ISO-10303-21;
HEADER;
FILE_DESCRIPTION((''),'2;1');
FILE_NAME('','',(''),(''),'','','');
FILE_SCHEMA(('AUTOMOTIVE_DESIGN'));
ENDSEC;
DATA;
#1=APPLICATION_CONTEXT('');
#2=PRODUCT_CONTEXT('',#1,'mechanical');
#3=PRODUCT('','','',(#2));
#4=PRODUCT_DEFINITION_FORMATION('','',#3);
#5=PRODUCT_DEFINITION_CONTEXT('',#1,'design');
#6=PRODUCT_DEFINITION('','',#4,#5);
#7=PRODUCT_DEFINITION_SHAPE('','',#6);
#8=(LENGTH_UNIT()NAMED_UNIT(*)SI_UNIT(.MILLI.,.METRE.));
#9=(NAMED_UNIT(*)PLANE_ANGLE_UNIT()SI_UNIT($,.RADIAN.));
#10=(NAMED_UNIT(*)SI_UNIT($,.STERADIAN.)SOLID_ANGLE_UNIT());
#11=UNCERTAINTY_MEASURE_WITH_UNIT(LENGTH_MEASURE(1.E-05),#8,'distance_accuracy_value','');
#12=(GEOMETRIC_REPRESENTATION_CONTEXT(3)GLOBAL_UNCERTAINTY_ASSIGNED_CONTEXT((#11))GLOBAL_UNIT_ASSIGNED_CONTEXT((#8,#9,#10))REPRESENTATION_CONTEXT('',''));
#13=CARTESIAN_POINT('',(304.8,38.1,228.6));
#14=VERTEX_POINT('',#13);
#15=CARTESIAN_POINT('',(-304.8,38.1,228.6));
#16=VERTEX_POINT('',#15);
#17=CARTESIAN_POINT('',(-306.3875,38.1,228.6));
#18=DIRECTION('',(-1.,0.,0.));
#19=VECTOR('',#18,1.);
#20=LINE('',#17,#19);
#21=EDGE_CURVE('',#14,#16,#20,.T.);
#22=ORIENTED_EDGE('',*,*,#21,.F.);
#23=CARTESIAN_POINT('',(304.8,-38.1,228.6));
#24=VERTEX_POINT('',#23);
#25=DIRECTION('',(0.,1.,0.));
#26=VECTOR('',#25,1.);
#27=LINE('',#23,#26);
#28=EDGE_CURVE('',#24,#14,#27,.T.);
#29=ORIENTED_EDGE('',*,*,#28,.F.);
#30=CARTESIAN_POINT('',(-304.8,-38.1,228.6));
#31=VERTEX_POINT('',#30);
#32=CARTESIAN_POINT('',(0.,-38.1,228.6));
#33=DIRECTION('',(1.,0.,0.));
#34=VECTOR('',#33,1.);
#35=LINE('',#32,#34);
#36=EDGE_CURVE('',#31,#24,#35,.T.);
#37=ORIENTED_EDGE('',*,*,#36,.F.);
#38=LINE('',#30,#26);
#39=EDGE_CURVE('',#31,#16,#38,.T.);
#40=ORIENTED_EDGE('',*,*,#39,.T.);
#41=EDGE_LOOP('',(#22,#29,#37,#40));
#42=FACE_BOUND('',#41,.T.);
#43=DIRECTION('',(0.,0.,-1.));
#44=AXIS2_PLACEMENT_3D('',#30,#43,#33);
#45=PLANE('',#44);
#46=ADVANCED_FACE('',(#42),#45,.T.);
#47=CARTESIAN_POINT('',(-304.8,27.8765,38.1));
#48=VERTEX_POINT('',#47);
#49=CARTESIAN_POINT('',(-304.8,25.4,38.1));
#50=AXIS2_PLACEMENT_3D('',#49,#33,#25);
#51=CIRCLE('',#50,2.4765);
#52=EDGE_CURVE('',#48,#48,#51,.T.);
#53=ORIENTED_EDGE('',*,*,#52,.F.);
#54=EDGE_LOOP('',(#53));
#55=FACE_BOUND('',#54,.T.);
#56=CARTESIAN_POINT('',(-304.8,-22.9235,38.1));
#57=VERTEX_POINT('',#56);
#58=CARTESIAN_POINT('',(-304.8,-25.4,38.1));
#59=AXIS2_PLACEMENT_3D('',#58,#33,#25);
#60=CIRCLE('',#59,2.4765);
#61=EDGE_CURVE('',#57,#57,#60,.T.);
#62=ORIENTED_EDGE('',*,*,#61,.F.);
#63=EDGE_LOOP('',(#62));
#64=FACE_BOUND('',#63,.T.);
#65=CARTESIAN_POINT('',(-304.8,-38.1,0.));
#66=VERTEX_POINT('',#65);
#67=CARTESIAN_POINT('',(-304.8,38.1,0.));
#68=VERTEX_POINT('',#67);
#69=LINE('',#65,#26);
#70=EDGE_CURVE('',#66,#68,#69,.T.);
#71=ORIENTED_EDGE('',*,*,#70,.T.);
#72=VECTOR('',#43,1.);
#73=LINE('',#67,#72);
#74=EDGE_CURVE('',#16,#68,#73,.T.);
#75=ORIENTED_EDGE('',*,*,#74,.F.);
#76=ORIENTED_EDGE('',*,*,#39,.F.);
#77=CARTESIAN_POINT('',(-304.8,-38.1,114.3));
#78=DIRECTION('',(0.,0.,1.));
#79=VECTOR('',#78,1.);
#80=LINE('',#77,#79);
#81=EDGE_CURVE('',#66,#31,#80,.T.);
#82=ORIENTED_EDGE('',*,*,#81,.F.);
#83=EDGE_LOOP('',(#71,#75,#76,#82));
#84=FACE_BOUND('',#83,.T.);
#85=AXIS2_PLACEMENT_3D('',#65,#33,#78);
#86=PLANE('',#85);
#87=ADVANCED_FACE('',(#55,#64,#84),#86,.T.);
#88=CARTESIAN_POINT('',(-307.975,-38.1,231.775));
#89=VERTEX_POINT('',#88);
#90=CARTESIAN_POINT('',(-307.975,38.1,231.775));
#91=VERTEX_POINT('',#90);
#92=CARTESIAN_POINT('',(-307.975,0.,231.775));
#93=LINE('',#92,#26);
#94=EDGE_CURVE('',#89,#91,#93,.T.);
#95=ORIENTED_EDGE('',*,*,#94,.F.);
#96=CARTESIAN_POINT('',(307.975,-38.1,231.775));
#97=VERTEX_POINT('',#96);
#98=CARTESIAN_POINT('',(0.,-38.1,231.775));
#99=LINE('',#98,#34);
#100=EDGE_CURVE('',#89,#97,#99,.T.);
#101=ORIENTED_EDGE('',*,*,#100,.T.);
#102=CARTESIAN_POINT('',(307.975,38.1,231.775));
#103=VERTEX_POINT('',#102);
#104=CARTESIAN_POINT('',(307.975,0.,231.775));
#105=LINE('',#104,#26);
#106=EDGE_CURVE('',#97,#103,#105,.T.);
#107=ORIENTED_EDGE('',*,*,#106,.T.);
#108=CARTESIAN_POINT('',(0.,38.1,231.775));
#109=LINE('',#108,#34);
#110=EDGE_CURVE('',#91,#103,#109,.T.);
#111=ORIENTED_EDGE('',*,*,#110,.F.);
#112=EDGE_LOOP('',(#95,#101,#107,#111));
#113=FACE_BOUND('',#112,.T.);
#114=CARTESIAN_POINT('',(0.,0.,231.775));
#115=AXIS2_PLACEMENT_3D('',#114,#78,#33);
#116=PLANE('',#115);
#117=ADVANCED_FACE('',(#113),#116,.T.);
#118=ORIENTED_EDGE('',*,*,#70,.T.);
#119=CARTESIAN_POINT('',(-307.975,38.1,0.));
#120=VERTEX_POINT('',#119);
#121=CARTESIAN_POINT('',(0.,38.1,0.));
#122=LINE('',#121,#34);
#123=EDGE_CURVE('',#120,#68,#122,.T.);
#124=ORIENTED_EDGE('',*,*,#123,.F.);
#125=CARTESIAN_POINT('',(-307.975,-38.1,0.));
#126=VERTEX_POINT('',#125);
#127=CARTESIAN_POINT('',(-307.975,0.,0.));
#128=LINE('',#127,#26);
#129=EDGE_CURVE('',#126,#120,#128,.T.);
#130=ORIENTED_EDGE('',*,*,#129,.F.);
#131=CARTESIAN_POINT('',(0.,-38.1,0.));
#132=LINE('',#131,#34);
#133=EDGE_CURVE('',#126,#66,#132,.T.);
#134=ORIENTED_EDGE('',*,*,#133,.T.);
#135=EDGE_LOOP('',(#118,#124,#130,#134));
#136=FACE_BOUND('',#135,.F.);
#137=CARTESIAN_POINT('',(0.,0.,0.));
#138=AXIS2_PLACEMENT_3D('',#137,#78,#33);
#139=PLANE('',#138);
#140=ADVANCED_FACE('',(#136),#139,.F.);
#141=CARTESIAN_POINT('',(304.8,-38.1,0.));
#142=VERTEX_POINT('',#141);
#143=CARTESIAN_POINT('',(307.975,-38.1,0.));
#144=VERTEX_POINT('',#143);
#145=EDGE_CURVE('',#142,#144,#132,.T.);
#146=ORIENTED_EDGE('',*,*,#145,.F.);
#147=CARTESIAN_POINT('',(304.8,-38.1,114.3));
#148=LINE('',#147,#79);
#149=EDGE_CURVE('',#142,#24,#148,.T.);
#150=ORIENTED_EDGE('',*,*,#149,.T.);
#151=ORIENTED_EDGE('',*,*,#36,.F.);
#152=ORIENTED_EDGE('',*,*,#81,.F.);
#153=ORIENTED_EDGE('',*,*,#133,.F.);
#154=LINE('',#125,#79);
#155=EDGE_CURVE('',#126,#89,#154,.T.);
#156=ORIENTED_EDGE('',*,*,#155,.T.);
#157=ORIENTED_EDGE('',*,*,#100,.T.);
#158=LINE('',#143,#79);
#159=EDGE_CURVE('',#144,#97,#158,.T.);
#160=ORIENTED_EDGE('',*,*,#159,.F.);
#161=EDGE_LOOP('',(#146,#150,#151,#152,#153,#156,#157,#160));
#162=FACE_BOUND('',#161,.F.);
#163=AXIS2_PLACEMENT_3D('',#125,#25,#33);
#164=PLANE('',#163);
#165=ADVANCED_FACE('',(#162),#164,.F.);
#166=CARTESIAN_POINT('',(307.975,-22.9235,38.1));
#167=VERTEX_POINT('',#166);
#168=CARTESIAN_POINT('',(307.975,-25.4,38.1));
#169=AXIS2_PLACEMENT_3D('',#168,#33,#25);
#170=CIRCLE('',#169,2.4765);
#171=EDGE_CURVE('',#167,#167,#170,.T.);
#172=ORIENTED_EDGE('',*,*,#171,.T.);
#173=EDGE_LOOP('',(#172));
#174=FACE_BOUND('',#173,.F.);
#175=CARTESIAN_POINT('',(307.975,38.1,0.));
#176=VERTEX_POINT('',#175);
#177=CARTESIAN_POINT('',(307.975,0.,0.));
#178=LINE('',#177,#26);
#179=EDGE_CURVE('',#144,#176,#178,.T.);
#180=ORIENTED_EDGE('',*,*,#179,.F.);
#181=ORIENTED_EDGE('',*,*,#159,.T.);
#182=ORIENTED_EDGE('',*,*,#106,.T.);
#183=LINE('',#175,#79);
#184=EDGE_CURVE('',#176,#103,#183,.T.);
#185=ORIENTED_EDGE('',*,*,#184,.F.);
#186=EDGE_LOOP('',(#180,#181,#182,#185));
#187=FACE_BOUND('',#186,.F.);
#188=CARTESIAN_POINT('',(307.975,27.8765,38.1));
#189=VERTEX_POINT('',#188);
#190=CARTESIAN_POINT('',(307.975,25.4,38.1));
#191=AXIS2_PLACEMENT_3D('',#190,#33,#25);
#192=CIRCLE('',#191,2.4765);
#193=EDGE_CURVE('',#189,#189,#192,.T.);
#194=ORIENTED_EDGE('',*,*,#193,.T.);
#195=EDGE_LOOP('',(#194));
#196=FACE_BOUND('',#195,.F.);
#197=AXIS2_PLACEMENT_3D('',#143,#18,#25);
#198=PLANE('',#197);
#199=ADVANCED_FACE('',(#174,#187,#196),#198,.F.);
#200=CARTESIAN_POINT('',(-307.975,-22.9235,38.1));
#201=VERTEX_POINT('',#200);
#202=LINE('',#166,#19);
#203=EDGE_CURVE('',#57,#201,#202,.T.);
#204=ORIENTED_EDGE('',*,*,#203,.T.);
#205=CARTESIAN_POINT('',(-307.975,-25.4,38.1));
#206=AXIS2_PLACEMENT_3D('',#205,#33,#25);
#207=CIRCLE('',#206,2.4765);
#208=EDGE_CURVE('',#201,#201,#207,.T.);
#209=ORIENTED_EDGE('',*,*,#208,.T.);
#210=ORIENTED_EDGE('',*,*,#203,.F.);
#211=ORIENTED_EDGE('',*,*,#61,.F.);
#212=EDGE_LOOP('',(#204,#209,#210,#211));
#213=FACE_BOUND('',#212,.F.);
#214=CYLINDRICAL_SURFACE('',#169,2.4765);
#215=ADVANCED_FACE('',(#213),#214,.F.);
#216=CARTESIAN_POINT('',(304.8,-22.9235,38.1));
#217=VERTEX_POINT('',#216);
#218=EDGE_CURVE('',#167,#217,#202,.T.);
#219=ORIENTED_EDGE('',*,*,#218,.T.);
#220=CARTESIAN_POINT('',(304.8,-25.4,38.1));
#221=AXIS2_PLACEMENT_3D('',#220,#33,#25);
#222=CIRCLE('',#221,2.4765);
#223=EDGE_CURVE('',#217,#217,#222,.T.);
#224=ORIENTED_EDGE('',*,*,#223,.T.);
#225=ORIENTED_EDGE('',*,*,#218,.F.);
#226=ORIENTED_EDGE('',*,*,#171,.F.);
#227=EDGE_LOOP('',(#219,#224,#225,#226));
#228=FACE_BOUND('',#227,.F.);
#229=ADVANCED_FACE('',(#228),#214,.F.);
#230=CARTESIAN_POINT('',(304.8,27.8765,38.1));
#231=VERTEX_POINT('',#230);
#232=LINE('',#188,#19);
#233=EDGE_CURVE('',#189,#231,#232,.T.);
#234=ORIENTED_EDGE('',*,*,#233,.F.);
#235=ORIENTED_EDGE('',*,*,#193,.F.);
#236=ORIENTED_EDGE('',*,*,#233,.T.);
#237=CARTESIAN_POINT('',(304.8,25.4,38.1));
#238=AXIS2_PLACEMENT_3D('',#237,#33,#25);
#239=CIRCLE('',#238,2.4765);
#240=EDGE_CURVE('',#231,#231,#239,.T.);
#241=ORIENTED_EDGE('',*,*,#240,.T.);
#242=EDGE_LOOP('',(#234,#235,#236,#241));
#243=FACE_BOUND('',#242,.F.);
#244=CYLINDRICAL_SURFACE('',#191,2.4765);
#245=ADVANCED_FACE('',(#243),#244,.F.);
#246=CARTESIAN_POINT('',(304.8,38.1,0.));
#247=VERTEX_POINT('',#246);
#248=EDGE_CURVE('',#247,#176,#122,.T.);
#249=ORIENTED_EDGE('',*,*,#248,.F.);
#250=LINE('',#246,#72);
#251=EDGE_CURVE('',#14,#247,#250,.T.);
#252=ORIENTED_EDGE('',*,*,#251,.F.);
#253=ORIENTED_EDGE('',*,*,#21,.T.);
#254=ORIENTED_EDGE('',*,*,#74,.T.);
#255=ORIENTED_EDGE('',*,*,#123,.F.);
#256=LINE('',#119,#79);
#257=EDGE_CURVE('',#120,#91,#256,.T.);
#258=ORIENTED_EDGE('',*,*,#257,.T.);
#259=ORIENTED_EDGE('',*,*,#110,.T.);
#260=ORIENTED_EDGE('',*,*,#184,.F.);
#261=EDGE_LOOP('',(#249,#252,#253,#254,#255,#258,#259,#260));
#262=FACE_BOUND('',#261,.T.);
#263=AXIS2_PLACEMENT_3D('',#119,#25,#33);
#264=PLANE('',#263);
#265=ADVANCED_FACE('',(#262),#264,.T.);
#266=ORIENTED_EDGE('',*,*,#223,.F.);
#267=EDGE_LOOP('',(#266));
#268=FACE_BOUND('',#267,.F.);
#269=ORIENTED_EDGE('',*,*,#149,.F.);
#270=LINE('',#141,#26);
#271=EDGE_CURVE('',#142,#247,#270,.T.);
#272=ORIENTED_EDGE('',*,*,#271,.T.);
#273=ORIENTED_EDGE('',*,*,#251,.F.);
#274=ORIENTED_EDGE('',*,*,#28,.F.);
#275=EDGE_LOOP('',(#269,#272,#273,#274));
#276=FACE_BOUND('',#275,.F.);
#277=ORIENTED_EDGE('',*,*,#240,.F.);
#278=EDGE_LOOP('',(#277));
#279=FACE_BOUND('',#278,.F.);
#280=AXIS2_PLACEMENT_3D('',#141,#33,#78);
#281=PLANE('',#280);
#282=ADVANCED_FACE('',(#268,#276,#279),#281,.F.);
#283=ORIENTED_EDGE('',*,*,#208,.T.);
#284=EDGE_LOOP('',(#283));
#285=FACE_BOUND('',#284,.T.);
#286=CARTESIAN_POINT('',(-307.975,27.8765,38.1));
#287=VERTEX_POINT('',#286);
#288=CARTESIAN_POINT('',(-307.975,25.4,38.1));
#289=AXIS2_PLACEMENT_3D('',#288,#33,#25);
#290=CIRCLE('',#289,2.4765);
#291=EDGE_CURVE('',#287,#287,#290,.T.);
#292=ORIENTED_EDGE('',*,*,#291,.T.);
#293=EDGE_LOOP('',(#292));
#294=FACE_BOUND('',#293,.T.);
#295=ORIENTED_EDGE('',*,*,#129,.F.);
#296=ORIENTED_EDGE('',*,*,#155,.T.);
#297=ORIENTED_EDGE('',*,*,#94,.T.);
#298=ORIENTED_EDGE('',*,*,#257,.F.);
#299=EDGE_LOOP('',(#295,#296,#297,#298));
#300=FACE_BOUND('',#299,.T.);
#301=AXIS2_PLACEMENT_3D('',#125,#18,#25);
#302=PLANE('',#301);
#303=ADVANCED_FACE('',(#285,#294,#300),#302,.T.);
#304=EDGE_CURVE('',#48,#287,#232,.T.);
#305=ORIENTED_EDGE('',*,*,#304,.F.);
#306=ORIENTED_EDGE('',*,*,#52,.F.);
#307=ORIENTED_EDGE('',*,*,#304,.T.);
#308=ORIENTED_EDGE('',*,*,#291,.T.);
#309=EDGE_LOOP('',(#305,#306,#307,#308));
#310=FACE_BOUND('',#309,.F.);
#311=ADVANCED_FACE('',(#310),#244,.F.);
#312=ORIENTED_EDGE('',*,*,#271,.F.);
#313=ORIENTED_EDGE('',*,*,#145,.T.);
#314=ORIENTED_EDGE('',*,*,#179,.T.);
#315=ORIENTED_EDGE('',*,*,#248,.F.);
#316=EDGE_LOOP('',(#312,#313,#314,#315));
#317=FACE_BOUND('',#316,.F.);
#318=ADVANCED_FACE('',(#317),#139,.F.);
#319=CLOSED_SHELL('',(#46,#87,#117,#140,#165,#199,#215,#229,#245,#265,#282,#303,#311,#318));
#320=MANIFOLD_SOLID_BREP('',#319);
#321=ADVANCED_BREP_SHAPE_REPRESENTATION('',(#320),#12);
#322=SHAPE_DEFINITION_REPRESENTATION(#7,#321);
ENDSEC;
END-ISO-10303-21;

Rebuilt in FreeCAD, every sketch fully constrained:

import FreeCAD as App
import Part
import Sketcher
Q = App.Units.Quantity


def add_polygon(sketch, points):
    """Adds a closed chain of lines whose ends are joined by coincident constraints."""
    first, n = sketch.GeometryCount, len(points)
    for a, b in zip(points, points[1:] + points[:1]):
        sketch.addGeometry(Part.LineSegment(App.Vector(*a, 0), App.Vector(*b, 0)), False)
    for i in range(n):
        sketch.addConstraint(Sketcher.Constraint("Coincident", first + i, 2, first + (i + 1) % n, 1))

doc = App.newDocument("Part")
body = doc.addObject("PartDesign::Body", "Body")

# Sketch on XY plane
sketch1 = doc.addObject("Sketcher::SketchObject", "Sketch")
body.addObject(sketch1)
sketch1.AttachmentSupport = (doc.XY_Plane, [""])
sketch1.MapMode = "FlatFace"
add_polygon(sketch1, [(-308, 38), (-308, -38), (308, -38), (308, 38)])  # lines 0-3
sketch1.addConstraint(Sketcher.Constraint("Vertical", 0))
sketch1.addConstraint(Sketcher.Constraint("Horizontal", 1))
sketch1.addConstraint(Sketcher.Constraint("Vertical", 2))
sketch1.addConstraint(Sketcher.Constraint("Horizontal", 3))
sketch1.addConstraint(Sketcher.Constraint("Symmetric", 0, 2, 2, 2, -1, 1))
sketch1.addConstraint(Sketcher.Constraint("DistanceY", 0, 2, 0, 1, Q("3 in")))
sketch1.addConstraint(Sketcher.Constraint("DistanceX", 1, 1, 1, 2, Q("24.25 in")))
pad1 = doc.addObject("PartDesign::Pad", "Pad")
body.addObject(pad1)
pad1.Profile = sketch1
pad1.Length = Q("9.125 in")

# Sketch on XZ plane
sketch2 = doc.addObject("Sketcher::SketchObject", "Sketch001")
body.addObject(sketch2)
sketch2.AttachmentSupport = (doc.XZ_Plane, [""])
sketch2.MapMode = "FlatFace"
sketch2.AttachmentOffset = App.Placement(App.Vector(0, 0, 1.5 * 25.4), App.Rotation())
add_polygon(sketch2, [(-305, 229), (-305, 0), (305, 0), (305, 229)])  # lines 0-3
sketch2.addConstraint(Sketcher.Constraint("Vertical", 0))
sketch2.addConstraint(Sketcher.Constraint("Horizontal", 1))
sketch2.addConstraint(Sketcher.Constraint("Vertical", 2))
sketch2.addConstraint(Sketcher.Constraint("Horizontal", 3))
sketch2.addConstraint(Sketcher.Constraint("Symmetric", 0, 2, 1, 2, -1, 1))
sketch2.addConstraint(Sketcher.Constraint("DistanceX", 1, 1, 1, 2, Q("24 in")))
sketch2.addConstraint(Sketcher.Constraint("DistanceY", 0, 2, 0, 1, Q("9 in")))
pocket1 = doc.addObject("PartDesign::Pocket", "Pocket")
body.addObject(pocket1)
pocket1.Profile = sketch2
pocket1.Type = "ThroughAll"

# Sketch on YZ plane
sketch3 = doc.addObject("Sketcher::SketchObject", "Sketch002")
body.addObject(sketch3)
sketch3.AttachmentSupport = (doc.YZ_Plane, [""])
sketch3.MapMode = "FlatFace"
sketch3.AttachmentOffset = App.Placement(App.Vector(0, 0, 12.125 * 25.4), App.Rotation())
sketch3.addGeometry(Part.Circle(App.Vector(-25.4, 38.1, 0), App.Vector(0, 0, 1), 2.5), False)
sketch3.addGeometry(Part.Circle(App.Vector(25.4, 38.1, 0), App.Vector(0, 0, 1), 2.5), False)
sketch3.addConstraint(Sketcher.Constraint("Equal", 0, 1))
sketch3.addConstraint(Sketcher.Constraint("Symmetric", 0, 3, 1, 3, -2))
sketch3.addConstraint(Sketcher.Constraint("Diameter", 0, Q("0.195 in")))
sketch3.addConstraint(Sketcher.Constraint("DistanceX", 0, 3, -1, 1, Q("1 in")))
sketch3.addConstraint(Sketcher.Constraint("DistanceY", -1, 1, 0, 3, Q("1.5 in")))
pocket2 = doc.addObject("PartDesign::Pocket", "Pocket001")
body.addObject(pocket2)
pocket2.Profile = sketch3
pocket2.Type = "ThroughAll"

doc.recompute()
